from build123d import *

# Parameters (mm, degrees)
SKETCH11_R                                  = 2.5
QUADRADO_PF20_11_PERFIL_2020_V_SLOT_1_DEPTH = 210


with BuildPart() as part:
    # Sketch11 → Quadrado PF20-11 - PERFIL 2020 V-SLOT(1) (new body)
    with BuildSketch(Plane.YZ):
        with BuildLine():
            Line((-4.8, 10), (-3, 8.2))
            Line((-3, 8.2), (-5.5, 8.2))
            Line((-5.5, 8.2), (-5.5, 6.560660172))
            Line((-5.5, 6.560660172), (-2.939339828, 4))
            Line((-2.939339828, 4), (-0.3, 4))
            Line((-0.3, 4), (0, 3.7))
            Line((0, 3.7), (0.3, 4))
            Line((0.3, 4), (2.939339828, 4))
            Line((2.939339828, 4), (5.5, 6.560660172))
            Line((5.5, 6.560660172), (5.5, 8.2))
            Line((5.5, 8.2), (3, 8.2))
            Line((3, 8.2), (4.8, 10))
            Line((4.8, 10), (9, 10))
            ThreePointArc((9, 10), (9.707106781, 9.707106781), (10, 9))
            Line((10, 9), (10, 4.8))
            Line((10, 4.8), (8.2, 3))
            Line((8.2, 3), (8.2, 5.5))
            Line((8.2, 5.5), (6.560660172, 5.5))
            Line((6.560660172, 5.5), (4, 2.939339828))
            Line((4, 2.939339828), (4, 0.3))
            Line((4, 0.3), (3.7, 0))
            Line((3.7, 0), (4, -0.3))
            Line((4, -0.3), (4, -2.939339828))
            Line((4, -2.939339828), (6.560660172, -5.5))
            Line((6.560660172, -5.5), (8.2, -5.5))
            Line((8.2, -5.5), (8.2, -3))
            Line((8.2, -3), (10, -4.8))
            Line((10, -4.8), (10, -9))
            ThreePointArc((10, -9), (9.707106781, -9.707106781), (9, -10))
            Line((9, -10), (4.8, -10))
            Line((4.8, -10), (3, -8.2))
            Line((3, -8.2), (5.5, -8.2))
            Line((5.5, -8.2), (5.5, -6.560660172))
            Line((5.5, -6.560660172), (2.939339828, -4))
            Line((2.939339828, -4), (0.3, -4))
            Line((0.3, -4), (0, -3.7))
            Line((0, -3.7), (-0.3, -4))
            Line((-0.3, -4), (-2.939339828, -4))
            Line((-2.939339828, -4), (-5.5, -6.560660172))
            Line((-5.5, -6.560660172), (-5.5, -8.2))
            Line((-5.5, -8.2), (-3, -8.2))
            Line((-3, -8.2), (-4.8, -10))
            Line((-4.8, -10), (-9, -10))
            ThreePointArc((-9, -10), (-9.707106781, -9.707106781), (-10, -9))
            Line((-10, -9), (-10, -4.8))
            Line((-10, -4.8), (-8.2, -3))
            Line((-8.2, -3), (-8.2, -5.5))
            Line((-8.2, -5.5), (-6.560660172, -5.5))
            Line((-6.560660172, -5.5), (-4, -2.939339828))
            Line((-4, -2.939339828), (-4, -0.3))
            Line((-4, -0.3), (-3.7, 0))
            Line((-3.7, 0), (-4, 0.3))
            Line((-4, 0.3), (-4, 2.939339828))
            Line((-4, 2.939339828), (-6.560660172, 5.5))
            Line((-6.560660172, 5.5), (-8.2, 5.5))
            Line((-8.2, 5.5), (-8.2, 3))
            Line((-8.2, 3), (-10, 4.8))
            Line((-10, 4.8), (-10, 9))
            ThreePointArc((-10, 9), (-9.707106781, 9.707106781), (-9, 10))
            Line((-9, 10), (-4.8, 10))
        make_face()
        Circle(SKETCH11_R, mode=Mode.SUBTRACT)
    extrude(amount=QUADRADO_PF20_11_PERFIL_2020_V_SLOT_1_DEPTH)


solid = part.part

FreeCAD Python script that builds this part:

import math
import FreeCAD as App
import Part
import Sketcher
Q = App.Units.Quantity

doc = App.newDocument("Part")
body = doc.addObject("PartDesign::Body", "Body")

# Sketch on YZ plane
sketch1 = doc.addObject("Sketcher::SketchObject", "Sketch")
body.addObject(sketch1)
sketch1.AttachmentSupport = (doc.YZ_Plane, [""])
sketch1.MapMode = "FlatFace"
sketch1.addGeometry(Part.LineSegment(App.Vector(-3, 8.2, 0), App.Vector(-4.8, 10, 0)), False)
sketch1.addGeometry(Part.LineSegment(App.Vector(-4.8, 10, 0), App.Vector(-9, 10, 0)), False)
sketch1.addGeometry(Part.ArcOfCircle(Part.Circle(App.Vector(-9, 9, 0), App.Vector(0, 0, 1), 1), math.radians(90), math.radians(180)), False)
sketch1.addGeometry(Part.LineSegment(App.Vector(-10, 9, 0), App.Vector(-10, 4.8, 0)), False)
sketch1.addGeometry(Part.LineSegment(App.Vector(-10, 4.8, 0), App.Vector(-8.2, 3, 0)), False)
sketch1.addGeometry(Part.LineSegment(App.Vector(-8.2, 3, 0), App.Vector(-8.2, 5.5, 0)), False)
sketch1.addGeometry(Part.LineSegment(App.Vector(-8.2, 5.5, 0), App.Vector(-6.56, 5.5, 0)), False)
sketch1.addGeometry(Part.LineSegment(App.Vector(-6.56, 5.5, 0), App.Vector(-4, 2.94, 0)), False)
sketch1.addGeometry(Part.LineSegment(App.Vector(-4, 2.94, 0), App.Vector(-4, 0.3, 0)), False)
sketch1.addGeometry(Part.LineSegment(App.Vector(-4, 0.3, 0), App.Vector(-3.7, 0, 0)), False)
sketch1.addGeometry(Part.LineSegment(App.Vector(-3.7, 0, 0), App.Vector(-4, -0.3, 0)), False)
sketch1.addGeometry(Part.LineSegment(App.Vector(-4, -0.3, 0), App.Vector(-4, -2.94, 0)), False)
sketch1.addGeometry(Part.LineSegment(App.Vector(-4, -2.94, 0), App.Vector(-6.56, -5.5, 0)), False)
sketch1.addGeometry(Part.LineSegment(App.Vector(-6.56, -5.5, 0), App.Vector(-8.2, -5.5, 0)), False)
sketch1.addGeometry(Part.LineSegment(App.Vector(-8.2, -5.5, 0), App.Vector(-8.2, -3, 0)), False)
sketch1.addGeometry(Part.LineSegment(App.Vector(-8.2, -3, 0), App.Vector(-10, -4.8, 0)), False)
sketch1.addGeometry(Part.LineSegment(App.Vector(-10, -4.8, 0), App.Vector(-10, -9, 0)), False)
sketch1.addGeometry(Part.ArcOfCircle(Part.Circle(App.Vector(-9, -9, 0), App.Vector(0, 0, 1), 1), math.radians(-180), math.radians(-90)), False)
sketch1.addGeometry(Part.LineSegment(App.Vector(-9, -10, 0), App.Vector(-4.8, -10, 0)), False)
sketch1.addGeometry(Part.LineSegment(App.Vector(-4.8, -10, 0), App.Vector(-3, -8.2, 0)), False)
sketch1.addGeometry(Part.LineSegment(App.Vector(-3, -8.2, 0), App.Vector(-5.5, -8.2, 0)), False)
sketch1.addGeometry(Part.LineSegment(App.Vector(-5.5, -8.2, 0), App.Vector(-5.5, -6.56, 0)), False)
sketch1.addGeometry(Part.LineSegment(App.Vector(-5.5, -6.56, 0), App.Vector(-2.94, -4, 0)), False)
sketch1.addGeometry(Part.LineSegment(App.Vector(-2.94, -4, 0), App.Vector(-0.3, -4, 0)), False)
sketch1.addGeometry(Part.LineSegment(App.Vector(-0.3, -4, 0), App.Vector(0, -3.7, 0)), False)
sketch1.addGeometry(Part.LineSegment(App.Vector(0, -3.7, 0), App.Vector(0.3, -4, 0)), False)
sketch1.addGeometry(Part.LineSegment(App.Vector(0.3, -4, 0), App.Vector(2.94, -4, 0)), False)
sketch1.addGeometry(Part.LineSegment(App.Vector(2.94, -4, 0), App.Vector(5.5, -6.56, 0)), False)
sketch1.addGeometry(Part.LineSegment(App.Vector(5.5, -6.56, 0), App.Vector(5.5, -8.2, 0)), False)
sketch1.addGeometry(Part.LineSegment(App.Vector(5.5, -8.2, 0), App.Vector(3, -8.2, 0)), False)
sketch1.addGeometry(Part.LineSegment(App.Vector(3, -8.2, 0), App.Vector(4.8, -10, 0)), False)
sketch1.addGeometry(Part.LineSegment(App.Vector(4.8, -10, 0), App.Vector(9, -10, 0)), False)
sketch1.addGeometry(Part.ArcOfCircle(Part.Circle(App.Vector(9, -9, 0), App.Vector(0, 0, 1), 1), math.radians(-90), math.radians(0)), False)
sketch1.addGeometry(Part.LineSegment(App.Vector(10, -9, 0), App.Vector(10, -4.8, 0)), False)
sketch1.addGeometry(Part.LineSegment(App.Vector(10, -4.8, 0), App.Vector(8.2, -3, 0)), False)
sketch1.addGeometry(Part.LineSegment(App.Vector(8.2, -3, 0), App.Vector(8.2, -5.5, 0)), False)
sketch1.addGeometry(Part.LineSegment(App.Vector(8.2, -5.5, 0), App.Vector(6.56, -5.5, 0)), False)
sketch1.addGeometry(Part.LineSegment(App.Vector(6.56, -5.5, 0), App.Vector(4, -2.94, 0)), False)
sketch1.addGeometry(Part.LineSegment(App.Vector(4, -2.94, 0), App.Vector(4, -0.3, 0)), False)
sketch1.addGeometry(Part.LineSegment(App.Vector(4, -0.3, 0), App.Vector(3.7, 0, 0)), False)
sketch1.addGeometry(Part.LineSegment(App.Vector(3.7, 0, 0), App.Vector(4, 0.3, 0)), False)
sketch1.addGeometry(Part.LineSegment(App.Vector(4, 0.3, 0), App.Vector(4, 2.94, 0)), False)
sketch1.addGeometry(Part.LineSegment(App.Vector(4, 2.94, 0), App.Vector(6.56, 5.5, 0)), False)
sketch1.addGeometry(Part.LineSegment(App.Vector(6.56, 5.5, 0), App.Vector(8.2, 5.5, 0)), False)
sketch1.addGeometry(Part.LineSegment(App.Vector(8.2, 5.5, 0), App.Vector(8.2, 3, 0)), False)
sketch1.addGeometry(Part.LineSegment(App.Vector(8.2, 3, 0), App.Vector(10, 4.8, 0)), False)
sketch1.addGeometry(Part.LineSegment(App.Vector(10, 4.8, 0), App.Vector(10, 9, 0)), False)
sketch1.addGeometry(Part.ArcOfCircle(Part.Circle(App.Vector(9, 9, 0), App.Vector(0, 0, 1), 1), math.radians(0), math.radians(90)), False)
sketch1.addGeometry(Part.LineSegment(App.Vector(9, 10, 0), App.Vector(4.8, 10, 0)), False)
sketch1.addGeometry(Part.LineSegment(App.Vector(4.8, 10, 0), App.Vector(3, 8.2, 0)), False)
sketch1.addGeometry(Part.LineSegment(App.Vector(3, 8.2, 0), App.Vector(5.5, 8.2, 0)), False)
sketch1.addGeometry(Part.LineSegment(App.Vector(5.5, 8.2, 0), App.Vector(5.5, 6.56, 0)), False)
sketch1.addGeometry(Part.LineSegment(App.Vector(5.5, 6.56, 0), App.Vector(2.94, 4, 0)), False)
sketch1.addGeometry(Part.LineSegment(App.Vector(2.94, 4, 0), App.Vector(0.3, 4, 0)), False)
sketch1.addGeometry(Part.LineSegment(App.Vector(0.3, 4, 0), App.Vector(0, 3.7, 0)), False)
sketch1.addGeometry(Part.LineSegment(App.Vector(0, 3.7, 0), App.Vector(-0.3, 4, 0)), False)
sketch1.addGeometry(Part.LineSegment(App.Vector(-0.3, 4, 0), App.Vector(-2.94, 4, 0)), False)
sketch1.addGeometry(Part.LineSegment(App.Vector(-2.94, 4, 0), App.Vector(-5.5, 6.56, 0)), False)
sketch1.addGeometry(Part.LineSegment(App.Vector(-5.5, 6.56, 0), App.Vector(-5.5, 8.2, 0)), False)
sketch1.addGeometry(Part.LineSegment(App.Vector(-5.5, 8.2, 0), App.Vector(-3, 8.2, 0)), False)
sketch1.addGeometry(Part.Circle(App.Vector(0, 0, 0), App.Vector(0, 0, 1), 2.5), False)
sketch1.addConstraint(Sketcher.Constraint("Coincident", 0, 2, 1, 1))
sketch1.addConstraint(Sketcher.Constraint("Tangent", 1, 2, 2, 1))
sketch1.addConstraint(Sketcher.Constraint("Tangent", 2, 2, 3, 1))
sketch1.addConstraint(Sketcher.Constraint("Coincident", 3, 2, 4, 1))
sketch1.addConstraint(Sketcher.Constraint("Coincident", 4, 2, 5, 1))
sketch1.addConstraint(Sketcher.Constraint("Coincident", 5, 2, 6, 1))
sketch1.addConstraint(Sketcher.Constraint("Coincident", 6, 2, 7, 1))
sketch1.addConstraint(Sketcher.Constraint("Coincident", 7, 2, 8, 1))
sketch1.addConstraint(Sketcher.Constraint("Coincident", 8, 2, 9, 1))
sketch1.addConstraint(Sketcher.Constraint("Coincident", 9, 2, 10, 1))
sketch1.addConstraint(Sketcher.Constraint("Coincident", 10, 2, 11, 1))
sketch1.addConstraint(Sketcher.Constraint("Coincident", 11, 2, 12, 1))
sketch1.addConstraint(Sketcher.Constraint("Coincident", 12, 2, 13, 1))
sketch1.addConstraint(Sketcher.Constraint("Coincident", 13, 2, 14, 1))
sketch1.addConstraint(Sketcher.Constraint("Coincident", 14, 2, 15, 1))
sketch1.addConstraint(Sketcher.Constraint("Coincident", 15, 2, 16, 1))
sketch1.addConstraint(Sketcher.Constraint("Tangent", 16, 2, 17, 1))
sketch1.addConstraint(Sketcher.Constraint("Tangent", 17, 2, 18, 1))
sketch1.addConstraint(Sketcher.Constraint("Coincident", 18, 2, 19, 1))
sketch1.addConstraint(Sketcher.Constraint("Coincident", 19, 2, 20, 1))
sketch1.addConstraint(Sketcher.Constraint("Coincident", 20, 2, 21, 1))
sketch1.addConstraint(Sketcher.Constraint("Coincident", 21, 2, 22, 1))
sketch1.addConstraint(Sketcher.Constraint("Coincident", 22, 2, 23, 1))
sketch1.addConstraint(Sketcher.Constraint("Coincident", 23, 2, 24, 1))
sketch1.addConstraint(Sketcher.Constraint("Coincident", 24, 2, 25, 1))
sketch1.addConstraint(Sketcher.Constraint("Coincident", 25, 2, 26, 1))
sketch1.addConstraint(Sketcher.Constraint("Coincident", 26, 2, 27, 1))
sketch1.addConstraint(Sketcher.Constraint("Coincident", 27, 2, 28, 1))
sketch1.addConstraint(Sketcher.Constraint("Coincident", 28, 2, 29, 1))
sketch1.addConstraint(Sketcher.Constraint("Coincident", 29, 2, 30, 1))
sketch1.addConstraint(Sketcher.Constraint("Coincident", 30, 2, 31, 1))
sketch1.addConstraint(Sketcher.Constraint("Tangent", 31, 2, 32, 1))
sketch1.addConstraint(Sketcher.Constraint("Tangent", 32, 2, 33, 1))
sketch1.addConstraint(Sketcher.Constraint("Coincident", 33, 2, 34, 1))
sketch1.addConstraint(Sketcher.Constraint("Coincident", 34, 2, 35, 1))
sketch1.addConstraint(Sketcher.Constraint("Coincident", 35, 2, 36, 1))
sketch1.addConstraint(Sketcher.Constraint("Coincident", 36, 2, 37, 1))
sketch1.addConstraint(Sketcher.Constraint("Coincident", 37, 2, 38, 1))
sketch1.addConstraint(Sketcher.Constraint("Coincident", 38, 2, 39, 1))
sketch1.addConstraint(Sketcher.Constraint("Coincident", 39, 2, 40, 1))
sketch1.addConstraint(Sketcher.Constraint("Coincident", 40, 2, 41, 1))
sketch1.addConstraint(Sketcher.Constraint("Coincident", 41, 2, 42, 1))
sketch1.addConstraint(Sketcher.Constraint("Coincident", 42, 2, 43, 1))
sketch1.addConstraint(Sketcher.Constraint("Coincident", 43, 2, 44, 1))
sketch1.addConstraint(Sketcher.Constraint("Coincident", 44, 2, 45, 1))
sketch1.addConstraint(Sketcher.Constraint("Coincident", 45, 2, 46, 1))
sketch1.addConstraint(Sketcher.Constraint("Tangent", 46, 2, 47, 1))
sketch1.addConstraint(Sketcher.Constraint("Tangent", 47, 2, 48, 1))
sketch1.addConstraint(Sketcher.Constraint("Coincident", 48, 2, 49, 1))
sketch1.addConstraint(Sketcher.Constraint("Coincident", 49, 2, 50, 1))
sketch1.addConstraint(Sketcher.Constraint("Coincident", 50, 2, 51, 1))
sketch1.addConstraint(Sketcher.Constraint("Coincident", 51, 2, 52, 1))
sketch1.addConstraint(Sketcher.Constraint("Coincident", 52, 2, 53, 1))
sketch1.addConstraint(Sketcher.Constraint("Coincident", 53, 2, 54, 1))
sketch1.addConstraint(Sketcher.Constraint("Coincident", 54, 2, 55, 1))
sketch1.addConstraint(Sketcher.Constraint("Coincident", 55, 2, 56, 1))
sketch1.addConstraint(Sketcher.Constraint("Coincident", 56, 2, 57, 1))
sketch1.addConstraint(Sketcher.Constraint("Coincident", 57, 2, 58, 1))
sketch1.addConstraint(Sketcher.Constraint("Coincident", 58, 2, 59, 1))
sketch1.addConstraint(Sketcher.Constraint("Coincident", 59, 2, 0, 1))
sketch1.addConstraint(Sketcher.Constraint("Horizontal", 1))
sketch1.addConstraint(Sketcher.Constraint("Vertical", 3))
sketch1.addConstraint(Sketcher.Constraint("Vertical", 5))
sketch1.addConstraint(Sketcher.Constraint("Horizontal", 6))
sketch1.addConstraint(Sketcher.Constraint("Vertical", 8))
sketch1.addConstraint(Sketcher.Constraint("Vertical", 11))
sketch1.addConstraint(Sketcher.Constraint("Horizontal", 13))
sketch1.addConstraint(Sketcher.Constraint("Vertical", 14))
sketch1.addConstraint(Sketcher.Constraint("Vertical", 16))
sketch1.addConstraint(Sketcher.Constraint("Horizontal", 18))
sketch1.addConstraint(Sketcher.Constraint("Horizontal", 20))
sketch1.addConstraint(Sketcher.Constraint("Vertical", 21))
sketch1.addConstraint(Sketcher.Constraint("Horizontal", 23))
sketch1.addConstraint(Sketcher.Constraint("Horizontal", 26))
sketch1.addConstraint(Sketcher.Constraint("Vertical", 28))
sketch1.addConstraint(Sketcher.Constraint("Horizontal", 29))
sketch1.addConstraint(Sketcher.Constraint("Horizontal", 31))
sketch1.addConstraint(Sketcher.Constraint("Vertical", 33))
sketch1.addConstraint(Sketcher.Constraint("Vertical", 35))
sketch1.addConstraint(Sketcher.Constraint("Horizontal", 36))
sketch1.addConstraint(Sketcher.Constraint("Vertical", 38))
sketch1.addConstraint(Sketcher.Constraint("Vertical", 41))
sketch1.addConstraint(Sketcher.Constraint("Horizontal", 43))
sketch1.addConstraint(Sketcher.Constraint("Vertical", 44))
sketch1.addConstraint(Sketcher.Constraint("Vertical", 46))
sketch1.addConstraint(Sketcher.Constraint("Horizontal", 48))
sketch1.addConstraint(Sketcher.Constraint("Horizontal", 50))
sketch1.addConstraint(Sketcher.Constraint("Vertical", 51))
sketch1.addConstraint(Sketcher.Constraint("Horizontal", 53))
sketch1.addConstraint(Sketcher.Constraint("Horizontal", 56))
sketch1.addConstraint(Sketcher.Constraint("Vertical", 58))
sketch1.addConstraint(Sketcher.Constraint("Horizontal", 59))
sketch1.addConstraint(Sketcher.Constraint("Coincident", 60, 3, -1, 1))
sketch1.addConstraint(Sketcher.Constraint("Equal", 2, 17))
sketch1.addConstraint(Sketcher.Constraint("Equal", 17, 32))
sketch1.addConstraint(Sketcher.Constraint("Equal", 32, 47))
sketch1.addConstraint(Sketcher.Constraint("Symmetric", 2, 3, 32, 3, -1, 1))
sketch1.addConstraint(Sketcher.Constraint("Symmetric", 17, 3, 47, 3, -1, 1))
sketch1.addConstraint(Sketcher.Constraint("Symmetric", 4, 2, 34, 2, -1, 1))
sketch1.addConstraint(Sketcher.Constraint("Symmetric", 6, 2, 36, 2, -1, 1))
sketch1.addConstraint(Sketcher.Constraint("Symmetric", 7, 2, 37, 2, -1, 1))
sketch1.addConstraint(Sketcher.Constraint("Symmetric", 9, 2, 39, 2, -1, 1))
sketch1.addConstraint(Sketcher.Constraint("Symmetric", 10, 2, 40, 2, -1, 1))
sketch1.addConstraint(Sketcher.Constraint("Symmetric", 12, 2, 42, 2, -1, 1))
sketch1.addConstraint(Sketcher.Constraint("Symmetric", 14, 2, 44, 2, -1, 1))
sketch1.addConstraint(Sketcher.Constraint("Symmetric", 19, 2, 49, 2, -1, 1))
sketch1.addConstraint(Sketcher.Constraint("Symmetric", 21, 2, 51, 2, -1, 1))
sketch1.addConstraint(Sketcher.Constraint("Symmetric", 22, 2, 52, 2, -1, 1))
sketch1.addConstraint(Sketcher.Constraint("Symmetric", 24, 2, 54, 2, -1, 1))
sketch1.addConstraint(Sketcher.Constraint("Symmetric", 25, 2, 55, 2, -1, 1))
sketch1.addConstraint(Sketcher.Constraint("Symmetric", 27, 2, 57, 2, -1, 1))
sketch1.addConstraint(Sketcher.Constraint("Symmetric", 29, 2, 59, 2, -1, 1))
sketch1.addConstraint(Sketcher.Constraint("Symmetric", 17, 3, 32, 3, -2))
sketch1.addConstraint(Sketcher.Constraint("Symmetric", 23, 2, 25, 2, -2))
sketch1.addConstraint(Sketcher.Constraint("Symmetric", 21, 2, 27, 2, -2))
sketch1.addConstraint(Sketcher.Constraint("Symmetric", 19, 2, 29, 2, -2))
sketch1.addConstraint(Sketcher.Constraint("Symmetric", 14, 2, 34, 2, -2))
sketch1.addConstraint(Sketcher.Constraint("Symmetric", 12, 2, 36, 2, -2))
sketch1.addConstraint(Sketcher.Constraint("Symmetric", 11, 2, 37, 2, -2))
sketch1.addConstraint(Sketcher.Constraint("PointOnObject", 9, 2, -1))
sketch1.addConstraint(Sketcher.Constraint("PointOnObject", 24, 2, -2))
sketch1.addConstraint(Sketcher.Constraint("Parallel", 0, 4))
sketch1.addConstraint(Sketcher.Constraint("Parallel", 4, 7))
sketch1.addConstraint(Sketcher.Constraint("Parallel", 7, 9))
sketch1.addConstraint(Sketcher.Constraint("Perpendicular", 9, 10))
sketch1.addConstraint(Sketcher.Constraint("Parallel", 10, 12))
sketch1.addConstraint(Sketcher.Constraint("Parallel", 12, 15))
sketch1.addConstraint(Sketcher.Constraint("Parallel", 15, 19))
sketch1.addConstraint(Sketcher.Constraint("Parallel", 19, 22))
sketch1.addConstraint(Sketcher.Constraint("Parallel", 22, 24))
sketch1.addConstraint(Sketcher.Constraint("Parallel", 25, 27))
sketch1.addConstraint(Sketcher.Constraint("Parallel", 27, 30))
sketch1.addConstraint(Sketcher.Constraint("Parallel", 30, 34))
sketch1.addConstraint(Sketcher.Constraint("Parallel", 37, 39))
sketch1.addConstraint(Sketcher.Constraint("Parallel", 40, 42))
sketch1.addConstraint(Sketcher.Constraint("Parallel", 42, 45))
sketch1.addConstraint(Sketcher.Constraint("Parallel", 45, 49))
sketch1.addConstraint(Sketcher.Constraint("Parallel", 52, 54))
sketch1.addConstraint(Sketcher.Constraint("Parallel", 55, 57))
sketch1.addConstraint(Sketcher.Constraint("Equal", 48, 3))
sketch1.addConstraint(Sketcher.Constraint("Equal", 59, 5))
sketch1.addConstraint(Sketcher.Constraint("Equal", 56, 8))
sketch1.addConstraint(Sketcher.Constraint("Equal", 43, 21))
sketch1.addConstraint(Sketcher.Constraint("Equal", 0, 4))
sketch1.addConstraint(Sketcher.Constraint("Equal", 12, 22))
sketch1.addConstraint(Sketcher.Constraint("Equal", 10, 24))
sketch1.addConstraint(Sketcher.Constraint("Diameter", 60, Q("5 mm")))
sketch1.addConstraint(Sketcher.Constraint("Radius", 2, Q("1 mm")))
sketch1.addConstraint(Sketcher.Constraint("DistanceX", 1, 2, 1, 1, Q("4.2 mm")))
sketch1.addConstraint(Sketcher.Constraint("DistanceX", 20, 2, 20, 1, Q("2.5 mm")))
sketch1.addConstraint(Sketcher.Constraint("DistanceX", 2, 3, -1, 1, Q("9 mm")))
sketch1.addConstraint(Sketcher.Constraint("DistanceY", -1, 1, 4, 2, Q("3 mm")))
sketch1.addConstraint(Sketcher.Constraint("DistanceX", 7, 2, -1, 1, Q("4 mm")))
sketch1.addConstraint(Sketcher.Constraint("DistanceY", -1, 1, 8, 2, Q("0.3 mm")))
sketch1.addConstraint(Sketcher.Constraint("DistanceX", 6, 1, 6, 2, Q("1.63934 mm")))
pad1 = doc.addObject("PartDesign::Pad", "Pad")
body.addObject(pad1)
pad1.Profile = sketch1
pad1.Length = 210

doc.recompute()
